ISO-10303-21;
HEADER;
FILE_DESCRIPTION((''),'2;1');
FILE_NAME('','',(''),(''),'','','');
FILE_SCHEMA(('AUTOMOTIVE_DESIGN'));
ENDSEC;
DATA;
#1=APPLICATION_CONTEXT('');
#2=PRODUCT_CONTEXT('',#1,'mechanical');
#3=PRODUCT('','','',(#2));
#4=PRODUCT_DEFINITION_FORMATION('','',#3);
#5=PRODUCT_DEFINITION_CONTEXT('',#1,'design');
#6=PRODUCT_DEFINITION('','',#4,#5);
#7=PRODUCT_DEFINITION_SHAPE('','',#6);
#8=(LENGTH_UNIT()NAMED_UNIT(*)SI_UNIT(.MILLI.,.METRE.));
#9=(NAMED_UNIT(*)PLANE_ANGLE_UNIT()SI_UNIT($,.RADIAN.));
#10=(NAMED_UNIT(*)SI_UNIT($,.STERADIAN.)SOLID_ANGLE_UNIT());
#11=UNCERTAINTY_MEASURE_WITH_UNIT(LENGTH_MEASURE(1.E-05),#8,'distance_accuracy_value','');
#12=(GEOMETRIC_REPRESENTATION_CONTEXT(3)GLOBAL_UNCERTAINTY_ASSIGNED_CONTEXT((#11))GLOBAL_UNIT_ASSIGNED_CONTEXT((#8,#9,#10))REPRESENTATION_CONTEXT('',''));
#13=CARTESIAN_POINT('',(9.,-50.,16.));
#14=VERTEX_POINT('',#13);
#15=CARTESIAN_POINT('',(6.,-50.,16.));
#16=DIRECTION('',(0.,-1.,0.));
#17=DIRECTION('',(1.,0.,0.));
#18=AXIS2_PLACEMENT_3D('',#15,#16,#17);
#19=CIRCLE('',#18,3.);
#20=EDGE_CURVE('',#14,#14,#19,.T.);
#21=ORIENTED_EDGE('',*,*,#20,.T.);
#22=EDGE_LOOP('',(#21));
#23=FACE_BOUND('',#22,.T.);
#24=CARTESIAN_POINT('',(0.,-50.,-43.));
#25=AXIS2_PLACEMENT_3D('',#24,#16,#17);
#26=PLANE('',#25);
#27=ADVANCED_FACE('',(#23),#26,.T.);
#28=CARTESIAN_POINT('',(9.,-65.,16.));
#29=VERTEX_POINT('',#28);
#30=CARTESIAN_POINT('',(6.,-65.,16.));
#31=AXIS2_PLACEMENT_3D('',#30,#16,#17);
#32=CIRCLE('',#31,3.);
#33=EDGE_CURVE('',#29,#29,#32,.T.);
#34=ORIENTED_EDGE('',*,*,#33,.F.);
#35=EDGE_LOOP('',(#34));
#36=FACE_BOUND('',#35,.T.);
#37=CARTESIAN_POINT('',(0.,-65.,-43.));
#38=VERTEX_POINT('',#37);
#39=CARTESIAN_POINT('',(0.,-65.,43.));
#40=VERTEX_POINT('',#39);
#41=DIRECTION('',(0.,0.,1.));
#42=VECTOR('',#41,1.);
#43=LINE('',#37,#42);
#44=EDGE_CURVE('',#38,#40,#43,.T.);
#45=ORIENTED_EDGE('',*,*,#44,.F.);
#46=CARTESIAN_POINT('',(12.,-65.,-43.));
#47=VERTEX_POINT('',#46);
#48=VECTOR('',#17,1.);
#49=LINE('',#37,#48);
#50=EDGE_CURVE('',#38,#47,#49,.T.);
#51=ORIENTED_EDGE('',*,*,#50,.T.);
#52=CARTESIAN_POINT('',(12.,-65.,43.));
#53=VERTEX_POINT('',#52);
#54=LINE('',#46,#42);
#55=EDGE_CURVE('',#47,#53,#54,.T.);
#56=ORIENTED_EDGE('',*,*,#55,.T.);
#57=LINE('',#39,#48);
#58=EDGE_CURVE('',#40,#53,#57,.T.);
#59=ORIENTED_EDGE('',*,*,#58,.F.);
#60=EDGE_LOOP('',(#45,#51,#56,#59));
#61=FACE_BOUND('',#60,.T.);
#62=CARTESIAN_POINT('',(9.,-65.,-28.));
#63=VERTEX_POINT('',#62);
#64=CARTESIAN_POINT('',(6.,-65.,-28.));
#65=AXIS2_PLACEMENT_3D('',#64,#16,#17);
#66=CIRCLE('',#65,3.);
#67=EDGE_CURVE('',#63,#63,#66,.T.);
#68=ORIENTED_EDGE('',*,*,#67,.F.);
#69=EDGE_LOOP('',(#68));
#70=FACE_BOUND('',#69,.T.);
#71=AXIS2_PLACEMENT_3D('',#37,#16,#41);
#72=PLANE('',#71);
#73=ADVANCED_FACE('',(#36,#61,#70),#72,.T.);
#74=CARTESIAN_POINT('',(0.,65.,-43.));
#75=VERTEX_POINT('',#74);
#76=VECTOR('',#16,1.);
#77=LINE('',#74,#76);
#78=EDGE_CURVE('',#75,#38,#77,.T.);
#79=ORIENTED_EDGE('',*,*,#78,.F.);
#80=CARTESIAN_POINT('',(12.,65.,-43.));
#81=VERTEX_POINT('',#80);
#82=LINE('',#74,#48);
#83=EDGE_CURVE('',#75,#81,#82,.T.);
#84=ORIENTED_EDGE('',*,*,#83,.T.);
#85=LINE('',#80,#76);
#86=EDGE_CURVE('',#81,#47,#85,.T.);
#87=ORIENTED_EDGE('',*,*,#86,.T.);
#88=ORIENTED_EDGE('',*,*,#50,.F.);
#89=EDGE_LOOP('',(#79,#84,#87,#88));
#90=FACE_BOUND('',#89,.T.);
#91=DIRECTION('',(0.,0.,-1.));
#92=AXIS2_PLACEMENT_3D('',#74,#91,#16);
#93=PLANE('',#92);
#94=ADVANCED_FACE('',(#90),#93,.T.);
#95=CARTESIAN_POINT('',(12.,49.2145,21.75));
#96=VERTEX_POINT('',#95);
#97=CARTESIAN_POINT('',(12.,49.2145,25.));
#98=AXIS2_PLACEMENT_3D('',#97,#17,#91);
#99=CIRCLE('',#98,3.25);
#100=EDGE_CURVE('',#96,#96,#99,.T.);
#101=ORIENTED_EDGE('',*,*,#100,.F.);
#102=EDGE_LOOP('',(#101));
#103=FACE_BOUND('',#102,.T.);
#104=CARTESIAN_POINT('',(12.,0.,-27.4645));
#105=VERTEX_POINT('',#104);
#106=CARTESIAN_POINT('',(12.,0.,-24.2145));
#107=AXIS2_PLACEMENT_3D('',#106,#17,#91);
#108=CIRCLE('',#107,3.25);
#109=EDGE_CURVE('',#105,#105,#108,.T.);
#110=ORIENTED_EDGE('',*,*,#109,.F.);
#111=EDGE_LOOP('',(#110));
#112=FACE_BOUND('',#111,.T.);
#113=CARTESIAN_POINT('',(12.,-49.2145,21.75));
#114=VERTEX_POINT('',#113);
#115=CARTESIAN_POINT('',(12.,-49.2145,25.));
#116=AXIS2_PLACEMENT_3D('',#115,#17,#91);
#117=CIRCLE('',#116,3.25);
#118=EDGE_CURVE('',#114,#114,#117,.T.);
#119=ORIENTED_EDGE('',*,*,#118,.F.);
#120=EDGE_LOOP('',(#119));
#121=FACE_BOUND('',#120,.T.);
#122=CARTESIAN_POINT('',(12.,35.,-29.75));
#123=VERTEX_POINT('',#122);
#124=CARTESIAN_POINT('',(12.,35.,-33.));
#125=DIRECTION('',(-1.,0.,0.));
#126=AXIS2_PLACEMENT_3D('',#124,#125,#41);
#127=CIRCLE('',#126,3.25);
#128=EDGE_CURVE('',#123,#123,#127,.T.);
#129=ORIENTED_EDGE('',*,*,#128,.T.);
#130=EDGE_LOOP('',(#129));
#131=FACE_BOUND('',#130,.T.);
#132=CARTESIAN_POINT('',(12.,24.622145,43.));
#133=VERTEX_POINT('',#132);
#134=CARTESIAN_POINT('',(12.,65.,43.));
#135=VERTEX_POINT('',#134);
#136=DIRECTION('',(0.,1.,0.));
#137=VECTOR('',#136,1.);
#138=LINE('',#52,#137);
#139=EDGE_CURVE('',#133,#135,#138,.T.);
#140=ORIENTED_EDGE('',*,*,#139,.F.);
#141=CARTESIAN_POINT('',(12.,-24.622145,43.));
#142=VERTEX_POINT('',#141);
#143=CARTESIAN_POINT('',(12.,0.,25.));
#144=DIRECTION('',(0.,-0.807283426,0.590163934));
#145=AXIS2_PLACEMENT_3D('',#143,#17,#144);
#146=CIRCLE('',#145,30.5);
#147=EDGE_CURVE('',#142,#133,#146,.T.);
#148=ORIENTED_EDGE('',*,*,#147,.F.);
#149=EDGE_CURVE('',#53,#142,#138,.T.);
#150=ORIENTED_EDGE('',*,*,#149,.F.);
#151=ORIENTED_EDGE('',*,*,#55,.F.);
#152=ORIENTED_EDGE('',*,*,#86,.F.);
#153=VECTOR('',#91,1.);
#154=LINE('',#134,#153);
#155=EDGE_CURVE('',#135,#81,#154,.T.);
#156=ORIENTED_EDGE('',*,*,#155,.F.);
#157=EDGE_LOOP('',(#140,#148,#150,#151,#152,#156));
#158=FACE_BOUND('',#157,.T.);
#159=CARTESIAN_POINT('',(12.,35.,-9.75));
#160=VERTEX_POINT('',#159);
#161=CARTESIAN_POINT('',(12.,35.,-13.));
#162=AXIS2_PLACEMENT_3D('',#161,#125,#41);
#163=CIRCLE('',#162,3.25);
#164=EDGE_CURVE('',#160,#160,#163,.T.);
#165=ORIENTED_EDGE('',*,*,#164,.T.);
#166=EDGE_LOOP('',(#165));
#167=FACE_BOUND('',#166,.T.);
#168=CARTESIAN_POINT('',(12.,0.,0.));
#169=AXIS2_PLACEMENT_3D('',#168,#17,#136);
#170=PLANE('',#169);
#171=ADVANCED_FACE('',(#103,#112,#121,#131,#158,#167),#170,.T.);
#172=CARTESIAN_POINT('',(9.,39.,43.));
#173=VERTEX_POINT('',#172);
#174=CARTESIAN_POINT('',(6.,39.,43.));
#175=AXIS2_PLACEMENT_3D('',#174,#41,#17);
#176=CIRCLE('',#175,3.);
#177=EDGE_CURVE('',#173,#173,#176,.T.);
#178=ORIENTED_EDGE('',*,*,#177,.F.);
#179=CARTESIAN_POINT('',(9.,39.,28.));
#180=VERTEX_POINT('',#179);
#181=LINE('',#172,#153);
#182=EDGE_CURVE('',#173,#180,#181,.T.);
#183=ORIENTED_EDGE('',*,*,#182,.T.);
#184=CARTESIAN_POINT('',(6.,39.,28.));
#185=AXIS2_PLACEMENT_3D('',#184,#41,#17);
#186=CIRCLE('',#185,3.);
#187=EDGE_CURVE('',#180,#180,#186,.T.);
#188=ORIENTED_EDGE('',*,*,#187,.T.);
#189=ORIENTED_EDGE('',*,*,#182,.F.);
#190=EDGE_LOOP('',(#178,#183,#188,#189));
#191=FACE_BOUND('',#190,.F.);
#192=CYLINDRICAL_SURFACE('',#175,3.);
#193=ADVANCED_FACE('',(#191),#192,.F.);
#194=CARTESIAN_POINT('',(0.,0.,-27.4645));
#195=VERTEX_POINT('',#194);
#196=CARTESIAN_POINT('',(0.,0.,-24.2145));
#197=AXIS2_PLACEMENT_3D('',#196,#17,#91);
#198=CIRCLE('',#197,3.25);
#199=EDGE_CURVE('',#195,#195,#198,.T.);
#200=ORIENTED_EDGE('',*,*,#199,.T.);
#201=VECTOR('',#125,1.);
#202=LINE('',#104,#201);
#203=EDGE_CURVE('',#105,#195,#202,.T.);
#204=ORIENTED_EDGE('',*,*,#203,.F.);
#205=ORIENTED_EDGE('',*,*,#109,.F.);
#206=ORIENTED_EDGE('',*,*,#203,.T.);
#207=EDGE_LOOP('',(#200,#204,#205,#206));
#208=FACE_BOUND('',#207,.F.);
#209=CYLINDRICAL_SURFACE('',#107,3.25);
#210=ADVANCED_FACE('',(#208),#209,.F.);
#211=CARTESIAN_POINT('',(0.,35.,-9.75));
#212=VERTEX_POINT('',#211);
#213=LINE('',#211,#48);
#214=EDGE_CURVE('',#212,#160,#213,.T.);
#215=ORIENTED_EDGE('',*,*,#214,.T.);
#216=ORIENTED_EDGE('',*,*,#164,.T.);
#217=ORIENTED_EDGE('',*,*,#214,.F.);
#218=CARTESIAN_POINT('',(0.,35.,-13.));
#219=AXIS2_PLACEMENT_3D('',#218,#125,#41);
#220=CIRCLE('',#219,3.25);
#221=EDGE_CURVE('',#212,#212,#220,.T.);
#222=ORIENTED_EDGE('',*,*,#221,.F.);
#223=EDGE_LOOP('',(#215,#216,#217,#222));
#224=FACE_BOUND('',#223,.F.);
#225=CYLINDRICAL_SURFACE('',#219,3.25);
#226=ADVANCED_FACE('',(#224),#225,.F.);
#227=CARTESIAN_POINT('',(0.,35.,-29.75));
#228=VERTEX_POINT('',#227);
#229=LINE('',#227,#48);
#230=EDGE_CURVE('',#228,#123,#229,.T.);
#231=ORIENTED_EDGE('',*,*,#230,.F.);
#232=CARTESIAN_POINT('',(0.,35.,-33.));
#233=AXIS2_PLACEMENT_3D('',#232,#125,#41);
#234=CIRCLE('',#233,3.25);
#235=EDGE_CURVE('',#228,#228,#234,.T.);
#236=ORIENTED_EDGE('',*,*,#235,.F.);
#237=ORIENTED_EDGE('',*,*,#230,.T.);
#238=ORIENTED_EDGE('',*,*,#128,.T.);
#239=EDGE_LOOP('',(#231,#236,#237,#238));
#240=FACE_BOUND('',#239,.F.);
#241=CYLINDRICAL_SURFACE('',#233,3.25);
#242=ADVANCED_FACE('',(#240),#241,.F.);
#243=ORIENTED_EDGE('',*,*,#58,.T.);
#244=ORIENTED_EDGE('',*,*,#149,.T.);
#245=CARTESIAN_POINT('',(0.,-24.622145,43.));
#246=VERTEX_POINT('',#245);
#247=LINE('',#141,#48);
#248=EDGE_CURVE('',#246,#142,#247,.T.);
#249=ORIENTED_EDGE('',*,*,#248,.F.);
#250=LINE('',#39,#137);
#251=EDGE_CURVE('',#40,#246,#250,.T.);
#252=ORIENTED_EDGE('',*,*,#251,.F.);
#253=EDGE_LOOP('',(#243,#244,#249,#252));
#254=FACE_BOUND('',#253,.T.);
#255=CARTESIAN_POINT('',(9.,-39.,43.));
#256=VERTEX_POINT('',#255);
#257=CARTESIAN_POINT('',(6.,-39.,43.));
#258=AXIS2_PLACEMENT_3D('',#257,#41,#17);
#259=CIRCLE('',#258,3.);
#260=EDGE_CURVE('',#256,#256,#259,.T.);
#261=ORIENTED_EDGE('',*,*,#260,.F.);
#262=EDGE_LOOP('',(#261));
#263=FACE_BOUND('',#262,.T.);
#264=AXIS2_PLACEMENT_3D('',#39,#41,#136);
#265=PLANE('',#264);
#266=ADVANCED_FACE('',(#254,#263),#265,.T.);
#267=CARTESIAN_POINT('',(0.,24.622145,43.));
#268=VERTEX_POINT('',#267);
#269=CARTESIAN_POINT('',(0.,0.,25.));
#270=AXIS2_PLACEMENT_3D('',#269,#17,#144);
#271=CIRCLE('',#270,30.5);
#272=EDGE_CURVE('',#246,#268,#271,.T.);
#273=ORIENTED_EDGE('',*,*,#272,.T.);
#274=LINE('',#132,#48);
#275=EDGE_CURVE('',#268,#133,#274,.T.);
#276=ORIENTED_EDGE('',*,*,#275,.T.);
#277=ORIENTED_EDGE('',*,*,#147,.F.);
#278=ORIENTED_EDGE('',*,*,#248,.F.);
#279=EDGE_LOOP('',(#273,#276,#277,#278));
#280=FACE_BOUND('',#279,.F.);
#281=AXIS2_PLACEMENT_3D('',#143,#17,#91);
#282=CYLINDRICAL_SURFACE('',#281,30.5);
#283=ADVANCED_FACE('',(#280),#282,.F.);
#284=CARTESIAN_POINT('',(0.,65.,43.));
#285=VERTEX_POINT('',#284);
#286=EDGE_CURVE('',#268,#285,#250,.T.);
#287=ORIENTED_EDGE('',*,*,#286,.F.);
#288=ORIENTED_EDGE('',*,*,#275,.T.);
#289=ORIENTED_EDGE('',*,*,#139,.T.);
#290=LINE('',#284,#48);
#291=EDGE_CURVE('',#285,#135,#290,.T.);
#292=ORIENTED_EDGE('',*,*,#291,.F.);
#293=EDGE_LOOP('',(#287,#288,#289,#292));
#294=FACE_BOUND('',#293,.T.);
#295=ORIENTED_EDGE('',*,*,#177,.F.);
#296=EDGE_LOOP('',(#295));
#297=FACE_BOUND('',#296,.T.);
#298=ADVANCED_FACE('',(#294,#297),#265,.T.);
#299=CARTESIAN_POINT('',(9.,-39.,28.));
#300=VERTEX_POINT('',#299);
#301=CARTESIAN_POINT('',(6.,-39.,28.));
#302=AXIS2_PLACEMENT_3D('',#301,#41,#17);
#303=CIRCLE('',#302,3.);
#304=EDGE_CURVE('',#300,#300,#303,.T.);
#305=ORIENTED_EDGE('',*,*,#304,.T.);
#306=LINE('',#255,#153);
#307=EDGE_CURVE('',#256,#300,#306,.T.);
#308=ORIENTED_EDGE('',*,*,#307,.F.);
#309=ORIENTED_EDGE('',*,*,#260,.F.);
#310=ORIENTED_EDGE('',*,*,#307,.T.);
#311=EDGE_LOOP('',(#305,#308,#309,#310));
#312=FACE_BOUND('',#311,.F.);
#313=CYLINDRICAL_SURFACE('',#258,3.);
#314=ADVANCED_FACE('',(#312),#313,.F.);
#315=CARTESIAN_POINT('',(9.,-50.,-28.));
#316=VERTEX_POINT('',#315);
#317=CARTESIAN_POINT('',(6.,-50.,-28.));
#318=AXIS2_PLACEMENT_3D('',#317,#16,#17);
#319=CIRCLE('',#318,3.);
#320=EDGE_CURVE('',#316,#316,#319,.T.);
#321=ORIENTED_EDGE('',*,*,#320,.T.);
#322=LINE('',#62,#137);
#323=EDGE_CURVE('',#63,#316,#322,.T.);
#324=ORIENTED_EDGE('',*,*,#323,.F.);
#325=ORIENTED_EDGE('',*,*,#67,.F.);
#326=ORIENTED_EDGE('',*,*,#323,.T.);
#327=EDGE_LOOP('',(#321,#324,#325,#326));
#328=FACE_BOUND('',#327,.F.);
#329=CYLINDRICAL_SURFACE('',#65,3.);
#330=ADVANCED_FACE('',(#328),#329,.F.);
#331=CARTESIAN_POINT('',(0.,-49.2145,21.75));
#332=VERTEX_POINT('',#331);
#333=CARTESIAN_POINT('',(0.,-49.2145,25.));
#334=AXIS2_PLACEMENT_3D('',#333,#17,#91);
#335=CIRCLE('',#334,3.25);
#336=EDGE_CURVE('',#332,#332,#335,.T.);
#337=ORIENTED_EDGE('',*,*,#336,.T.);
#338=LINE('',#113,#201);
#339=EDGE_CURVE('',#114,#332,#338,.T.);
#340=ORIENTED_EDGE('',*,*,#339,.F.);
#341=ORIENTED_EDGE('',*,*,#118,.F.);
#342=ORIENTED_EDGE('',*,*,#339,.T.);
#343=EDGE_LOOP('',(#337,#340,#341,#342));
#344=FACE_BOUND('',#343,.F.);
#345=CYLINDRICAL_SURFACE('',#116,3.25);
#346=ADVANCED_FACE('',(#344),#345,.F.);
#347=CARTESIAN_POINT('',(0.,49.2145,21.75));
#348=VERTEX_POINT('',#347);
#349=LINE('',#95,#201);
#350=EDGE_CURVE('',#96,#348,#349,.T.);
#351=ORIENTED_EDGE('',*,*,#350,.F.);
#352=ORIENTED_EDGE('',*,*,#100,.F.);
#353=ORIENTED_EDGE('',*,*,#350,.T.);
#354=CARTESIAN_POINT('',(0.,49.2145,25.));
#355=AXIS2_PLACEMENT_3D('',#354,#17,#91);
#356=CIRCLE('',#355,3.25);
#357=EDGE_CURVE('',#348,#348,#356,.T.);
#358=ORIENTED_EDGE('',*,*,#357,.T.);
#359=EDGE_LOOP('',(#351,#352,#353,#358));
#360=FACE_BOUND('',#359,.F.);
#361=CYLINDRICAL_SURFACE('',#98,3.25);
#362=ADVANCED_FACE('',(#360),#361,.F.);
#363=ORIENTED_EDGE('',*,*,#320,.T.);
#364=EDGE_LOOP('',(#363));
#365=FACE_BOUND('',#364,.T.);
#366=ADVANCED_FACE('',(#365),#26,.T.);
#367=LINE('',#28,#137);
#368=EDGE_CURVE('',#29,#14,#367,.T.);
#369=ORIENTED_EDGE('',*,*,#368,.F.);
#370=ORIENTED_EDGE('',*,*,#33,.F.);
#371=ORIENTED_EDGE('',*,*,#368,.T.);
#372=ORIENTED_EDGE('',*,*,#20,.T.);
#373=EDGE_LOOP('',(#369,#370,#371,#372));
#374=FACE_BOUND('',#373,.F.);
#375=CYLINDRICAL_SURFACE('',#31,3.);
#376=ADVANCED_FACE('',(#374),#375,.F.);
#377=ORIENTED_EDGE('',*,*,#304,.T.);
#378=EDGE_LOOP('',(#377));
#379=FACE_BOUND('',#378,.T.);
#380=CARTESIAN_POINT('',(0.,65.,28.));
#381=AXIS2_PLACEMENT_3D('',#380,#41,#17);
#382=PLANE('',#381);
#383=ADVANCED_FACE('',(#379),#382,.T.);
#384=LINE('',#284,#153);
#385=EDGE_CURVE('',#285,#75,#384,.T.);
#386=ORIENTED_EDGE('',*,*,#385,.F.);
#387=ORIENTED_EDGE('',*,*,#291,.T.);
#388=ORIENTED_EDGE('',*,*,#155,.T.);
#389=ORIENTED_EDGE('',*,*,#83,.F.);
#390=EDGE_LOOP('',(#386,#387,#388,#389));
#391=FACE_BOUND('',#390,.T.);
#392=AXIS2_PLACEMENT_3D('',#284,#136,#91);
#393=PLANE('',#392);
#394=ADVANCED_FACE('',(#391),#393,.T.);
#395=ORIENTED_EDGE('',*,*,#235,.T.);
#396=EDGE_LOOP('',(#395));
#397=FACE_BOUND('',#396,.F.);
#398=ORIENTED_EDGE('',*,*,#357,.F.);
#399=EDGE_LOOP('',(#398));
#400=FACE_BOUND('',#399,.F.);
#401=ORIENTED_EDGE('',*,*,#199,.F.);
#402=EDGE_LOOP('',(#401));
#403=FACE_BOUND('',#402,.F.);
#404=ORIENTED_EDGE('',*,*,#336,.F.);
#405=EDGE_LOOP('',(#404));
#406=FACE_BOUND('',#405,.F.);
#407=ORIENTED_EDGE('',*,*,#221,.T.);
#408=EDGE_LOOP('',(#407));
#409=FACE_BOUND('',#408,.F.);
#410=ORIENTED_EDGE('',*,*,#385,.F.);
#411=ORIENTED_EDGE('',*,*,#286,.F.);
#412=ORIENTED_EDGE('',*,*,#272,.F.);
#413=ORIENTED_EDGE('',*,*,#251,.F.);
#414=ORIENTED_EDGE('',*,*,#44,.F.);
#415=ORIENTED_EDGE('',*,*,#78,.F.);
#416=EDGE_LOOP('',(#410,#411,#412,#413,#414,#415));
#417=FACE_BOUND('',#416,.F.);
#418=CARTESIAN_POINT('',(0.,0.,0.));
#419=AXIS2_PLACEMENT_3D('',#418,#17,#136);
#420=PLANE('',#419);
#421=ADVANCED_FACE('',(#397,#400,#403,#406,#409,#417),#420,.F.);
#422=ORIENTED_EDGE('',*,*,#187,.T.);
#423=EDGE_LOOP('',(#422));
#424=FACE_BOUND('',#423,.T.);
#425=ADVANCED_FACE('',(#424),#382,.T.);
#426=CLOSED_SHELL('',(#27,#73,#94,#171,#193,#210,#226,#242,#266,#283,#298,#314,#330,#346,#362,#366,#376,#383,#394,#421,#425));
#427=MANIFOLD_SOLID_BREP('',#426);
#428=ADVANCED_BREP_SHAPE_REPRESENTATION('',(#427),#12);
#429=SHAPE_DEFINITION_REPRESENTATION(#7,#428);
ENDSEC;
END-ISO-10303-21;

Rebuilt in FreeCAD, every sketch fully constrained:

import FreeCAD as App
import Part
import Sketcher

V = App.Vector


def add_polygon(sketch, points):
    """Adds a closed chain of lines whose ends are joined by coincident constraints."""
    first, n = sketch.GeometryCount, len(points)
    for a, b in zip(points, points[1:] + points[:1]):
        sketch.addGeometry(Part.LineSegment(App.Vector(*a, 0), App.Vector(*b, 0)), False)
    for i in range(n):
        sketch.addConstraint(Sketcher.Constraint("Coincident", first + i, 2, first + (i + 1) % n, 1))

doc = App.newDocument("Part")
params = doc.addObject("Spreadsheet::Sheet", "Params")
for row, (alias, value) in enumerate([
    ("sketch1_width", "130 mm"),
    ("sketch1_height", "86 mm"),
    ("pad1_length", "12 mm"),
    ("sketch2_diameter", "61 mm"),
    ("sketch2_diameter2", "6.5 mm"),
    ("sketch3_diameter", "6 mm"),
    ("pocket2_length", "15 mm"),
    ("sketch4_diameter", "6 mm"),
    ("pocket3_length", "15 mm"),
    ("sketch5_diameter", "6.5 mm"),
], start=1):
    params.set(f"A{row}", alias)
    params.set(f"B{row}", "=" + value)
    params.setAlias(f"B{row}", alias)

body = doc.addObject("PartDesign::Body", "Body")

sketch1 = doc.addObject("Sketcher::SketchObject", "Sketch")
body.addObject(sketch1)
sketch1.AttachmentSupport = (doc.YZ_Plane, [""])
sketch1.MapMode = "FlatFace"
add_polygon(sketch1, [(65, 43), (-65, 43), (-65, -43), (65, -43)])
sketch1.addConstraint(Sketcher.Constraint("Horizontal", 0))
sketch1.addConstraint(Sketcher.Constraint("Vertical", 1))
sketch1.addConstraint(Sketcher.Constraint("Horizontal", 2))
sketch1.addConstraint(Sketcher.Constraint("Vertical", 3))
sketch1.addConstraint(Sketcher.Constraint("Symmetric", 0, 2, 2, 2, -1, 1))
sketch1.addConstraint(Sketcher.Constraint("DistanceX", 0, 2, 0, 1, 130.0))
sketch1.addConstraint(Sketcher.Constraint("DistanceY", 1, 2, 1, 1, 86.0))
sketch1.setExpression("Constraints[9]", "Params.sketch1_width")
sketch1.setExpression("Constraints[10]", "Params.sketch1_height")
pad1 = doc.addObject("PartDesign::Pad", "Pad")
body.addObject(pad1)
pad1.Profile = sketch1
pad1.setExpression("Length", "Params.pad1_length")

sketch2 = doc.addObject("Sketcher::SketchObject", "Sketch001")
body.addObject(sketch2)
sketch2.AttachmentSupport = (doc.YZ_Plane, [""])
sketch2.MapMode = "FlatFace"
sketch2.AttachmentOffset = App.Placement(V(0, 0, 12), App.Rotation())
sketch2.addGeometry(Part.Circle(V(49.2, 25, 0), V(0, 0, 1), 3.2), False)
sketch2.addGeometry(Part.Circle(V(-49.2, 25, 0), V(0, 0, 1), 3.2), False)
sketch2.addGeometry(Part.Circle(V(0, 25, 0), V(0, 0, 1), 30.5), False)
sketch2.addGeometry(Part.Circle(V(0, -24.2, 0), V(0, 0, 1), 3.2), False)
sketch2.addConstraint(Sketcher.Constraint("Equal", 0, 1))
sketch2.addConstraint(Sketcher.Constraint("Equal", 1, 3))
sketch2.addConstraint(Sketcher.Constraint("Symmetric", 0, 3, 1, 3, -2))
sketch2.addConstraint(Sketcher.Constraint("PointOnObject", 2, 3, -2))
sketch2.addConstraint(Sketcher.Constraint("PointOnObject", 3, 3, -2))
sketch2.addConstraint(Sketcher.Constraint("Horizontal", 1, 3, 2, 3))
sketch2.addConstraint(Sketcher.Constraint("Diameter", 2, 61.0))
sketch2.addConstraint(Sketcher.Constraint("Diameter", 0, 6.5))
sketch2.addConstraint(Sketcher.Constraint("DistanceY", -1, 1, 0, 3, 25.0))
sketch2.addConstraint(Sketcher.Constraint("DistanceX", 1, 3, 0, 3, 98.429))
sketch2.addConstraint(Sketcher.Constraint("DistanceY", 3, 3, 2, 3, 49.2145))
sketch2.setExpression("Constraints[6]", "Params.sketch2_diameter")
sketch2.setExpression("Constraints[7]", "Params.sketch2_diameter2")
pocket1 = doc.addObject("PartDesign::Pocket", "Pocket")
body.addObject(pocket1)
pocket1.Profile = sketch2
pocket1.Type = "ThroughAll"

sketch3 = doc.addObject("Sketcher::SketchObject", "Sketch002")
body.addObject(sketch3)
sketch3.AttachmentSupport = (doc.XY_Plane, [""])
sketch3.MapMode = "FlatFace"
sketch3.AttachmentOffset = App.Placement(V(0, 0, 43), App.Rotation())
sketch3.addGeometry(Part.Circle(V(6, -39, 0), V(0, 0, 1), 3), False)
sketch3.addGeometry(Part.Circle(V(6, 39, 0), V(0, 0, 1), 3), False)
sketch3.addConstraint(Sketcher.Constraint("Equal", 0, 1))
sketch3.addConstraint(Sketcher.Constraint("Symmetric", 0, 3, 1, 3, -1))
sketch3.addConstraint(Sketcher.Constraint("Diameter", 0, 6.0))
sketch3.addConstraint(Sketcher.Constraint("DistanceX", -1, 1, 0, 3, 6.0))
sketch3.addConstraint(Sketcher.Constraint("DistanceY", 0, 3, -1, 1, 39.0))
sketch3.setExpression("Constraints[2]", "Params.sketch3_diameter")
pocket2 = doc.addObject("PartDesign::Pocket", "Pocket001")
body.addObject(pocket2)
pocket2.Profile = sketch3
pocket2.setExpression("Length", "Params.pocket2_length")

sketch4 = doc.addObject("Sketcher::SketchObject", "Sketch003")
body.addObject(sketch4)
sketch4.AttachmentSupport = (doc.XZ_Plane, [""])
sketch4.MapMode = "FlatFace"
sketch4.AttachmentOffset = App.Placement(V(0, 0, 65), App.Rotation())
sketch4.addGeometry(Part.Circle(V(6, -28, 0), V(0, 0, 1), 3), False)
sketch4.addGeometry(Part.Circle(V(6, 16, 0), V(0, 0, 1), 3), False)
sketch4.addConstraint(Sketcher.Constraint("Equal", 0, 1))
sketch4.addConstraint(Sketcher.Constraint("Vertical", 0, 3, 1, 3))
sketch4.addConstraint(Sketcher.Constraint("Diameter", 0, 6.0))
sketch4.addConstraint(Sketcher.Constraint("DistanceX", -1, 1, 0, 3, 6.0))
sketch4.addConstraint(Sketcher.Constraint("DistanceY", 0, 3, -1, 1, 28.0))
sketch4.addConstraint(Sketcher.Constraint("DistanceY", -1, 1, 1, 3, 16.0))
sketch4.setExpression("Constraints[2]", "Params.sketch4_diameter")
pocket3 = doc.addObject("PartDesign::Pocket", "Pocket002")
body.addObject(pocket3)
pocket3.Profile = sketch4
pocket3.setExpression("Length", "Params.pocket3_length")

sketch5 = doc.addObject("Sketcher::SketchObject", "Sketch004")
body.addObject(sketch5)
sketch5.AttachmentSupport = (doc.YZ_Plane, [""])
sketch5.MapMode = "FlatFace"
sketch5.addGeometry(Part.Circle(V(35, -13, 0), V(0, 0, 1), 3.2), False)
sketch5.addGeometry(Part.Circle(V(35, -33, 0), V(0, 0, 1), 3.2), False)
sketch5.addConstraint(Sketcher.Constraint("Equal", 0, 1))
sketch5.addConstraint(Sketcher.Constraint("Vertical", 0, 3, 1, 3))
sketch5.addConstraint(Sketcher.Constraint("Diameter", 0, 6.5))
sketch5.addConstraint(Sketcher.Constraint("DistanceX", -1, 1, 0, 3, 35.0))
sketch5.addConstraint(Sketcher.Constraint("DistanceY", 0, 3, -1, 1, 13.0))
sketch5.addConstraint(Sketcher.Constraint("DistanceY", 1, 3, -1, 1, 33.0))
sketch5.setExpression("Constraints[2]", "Params.sketch5_diameter")
pocket4 = doc.addObject("PartDesign::Pocket", "Pocket003")
body.addObject(pocket4)
pocket4.Profile = sketch5
pocket4.Type = "ThroughAll"
pocket4.Reversed = True

doc.recompute()
